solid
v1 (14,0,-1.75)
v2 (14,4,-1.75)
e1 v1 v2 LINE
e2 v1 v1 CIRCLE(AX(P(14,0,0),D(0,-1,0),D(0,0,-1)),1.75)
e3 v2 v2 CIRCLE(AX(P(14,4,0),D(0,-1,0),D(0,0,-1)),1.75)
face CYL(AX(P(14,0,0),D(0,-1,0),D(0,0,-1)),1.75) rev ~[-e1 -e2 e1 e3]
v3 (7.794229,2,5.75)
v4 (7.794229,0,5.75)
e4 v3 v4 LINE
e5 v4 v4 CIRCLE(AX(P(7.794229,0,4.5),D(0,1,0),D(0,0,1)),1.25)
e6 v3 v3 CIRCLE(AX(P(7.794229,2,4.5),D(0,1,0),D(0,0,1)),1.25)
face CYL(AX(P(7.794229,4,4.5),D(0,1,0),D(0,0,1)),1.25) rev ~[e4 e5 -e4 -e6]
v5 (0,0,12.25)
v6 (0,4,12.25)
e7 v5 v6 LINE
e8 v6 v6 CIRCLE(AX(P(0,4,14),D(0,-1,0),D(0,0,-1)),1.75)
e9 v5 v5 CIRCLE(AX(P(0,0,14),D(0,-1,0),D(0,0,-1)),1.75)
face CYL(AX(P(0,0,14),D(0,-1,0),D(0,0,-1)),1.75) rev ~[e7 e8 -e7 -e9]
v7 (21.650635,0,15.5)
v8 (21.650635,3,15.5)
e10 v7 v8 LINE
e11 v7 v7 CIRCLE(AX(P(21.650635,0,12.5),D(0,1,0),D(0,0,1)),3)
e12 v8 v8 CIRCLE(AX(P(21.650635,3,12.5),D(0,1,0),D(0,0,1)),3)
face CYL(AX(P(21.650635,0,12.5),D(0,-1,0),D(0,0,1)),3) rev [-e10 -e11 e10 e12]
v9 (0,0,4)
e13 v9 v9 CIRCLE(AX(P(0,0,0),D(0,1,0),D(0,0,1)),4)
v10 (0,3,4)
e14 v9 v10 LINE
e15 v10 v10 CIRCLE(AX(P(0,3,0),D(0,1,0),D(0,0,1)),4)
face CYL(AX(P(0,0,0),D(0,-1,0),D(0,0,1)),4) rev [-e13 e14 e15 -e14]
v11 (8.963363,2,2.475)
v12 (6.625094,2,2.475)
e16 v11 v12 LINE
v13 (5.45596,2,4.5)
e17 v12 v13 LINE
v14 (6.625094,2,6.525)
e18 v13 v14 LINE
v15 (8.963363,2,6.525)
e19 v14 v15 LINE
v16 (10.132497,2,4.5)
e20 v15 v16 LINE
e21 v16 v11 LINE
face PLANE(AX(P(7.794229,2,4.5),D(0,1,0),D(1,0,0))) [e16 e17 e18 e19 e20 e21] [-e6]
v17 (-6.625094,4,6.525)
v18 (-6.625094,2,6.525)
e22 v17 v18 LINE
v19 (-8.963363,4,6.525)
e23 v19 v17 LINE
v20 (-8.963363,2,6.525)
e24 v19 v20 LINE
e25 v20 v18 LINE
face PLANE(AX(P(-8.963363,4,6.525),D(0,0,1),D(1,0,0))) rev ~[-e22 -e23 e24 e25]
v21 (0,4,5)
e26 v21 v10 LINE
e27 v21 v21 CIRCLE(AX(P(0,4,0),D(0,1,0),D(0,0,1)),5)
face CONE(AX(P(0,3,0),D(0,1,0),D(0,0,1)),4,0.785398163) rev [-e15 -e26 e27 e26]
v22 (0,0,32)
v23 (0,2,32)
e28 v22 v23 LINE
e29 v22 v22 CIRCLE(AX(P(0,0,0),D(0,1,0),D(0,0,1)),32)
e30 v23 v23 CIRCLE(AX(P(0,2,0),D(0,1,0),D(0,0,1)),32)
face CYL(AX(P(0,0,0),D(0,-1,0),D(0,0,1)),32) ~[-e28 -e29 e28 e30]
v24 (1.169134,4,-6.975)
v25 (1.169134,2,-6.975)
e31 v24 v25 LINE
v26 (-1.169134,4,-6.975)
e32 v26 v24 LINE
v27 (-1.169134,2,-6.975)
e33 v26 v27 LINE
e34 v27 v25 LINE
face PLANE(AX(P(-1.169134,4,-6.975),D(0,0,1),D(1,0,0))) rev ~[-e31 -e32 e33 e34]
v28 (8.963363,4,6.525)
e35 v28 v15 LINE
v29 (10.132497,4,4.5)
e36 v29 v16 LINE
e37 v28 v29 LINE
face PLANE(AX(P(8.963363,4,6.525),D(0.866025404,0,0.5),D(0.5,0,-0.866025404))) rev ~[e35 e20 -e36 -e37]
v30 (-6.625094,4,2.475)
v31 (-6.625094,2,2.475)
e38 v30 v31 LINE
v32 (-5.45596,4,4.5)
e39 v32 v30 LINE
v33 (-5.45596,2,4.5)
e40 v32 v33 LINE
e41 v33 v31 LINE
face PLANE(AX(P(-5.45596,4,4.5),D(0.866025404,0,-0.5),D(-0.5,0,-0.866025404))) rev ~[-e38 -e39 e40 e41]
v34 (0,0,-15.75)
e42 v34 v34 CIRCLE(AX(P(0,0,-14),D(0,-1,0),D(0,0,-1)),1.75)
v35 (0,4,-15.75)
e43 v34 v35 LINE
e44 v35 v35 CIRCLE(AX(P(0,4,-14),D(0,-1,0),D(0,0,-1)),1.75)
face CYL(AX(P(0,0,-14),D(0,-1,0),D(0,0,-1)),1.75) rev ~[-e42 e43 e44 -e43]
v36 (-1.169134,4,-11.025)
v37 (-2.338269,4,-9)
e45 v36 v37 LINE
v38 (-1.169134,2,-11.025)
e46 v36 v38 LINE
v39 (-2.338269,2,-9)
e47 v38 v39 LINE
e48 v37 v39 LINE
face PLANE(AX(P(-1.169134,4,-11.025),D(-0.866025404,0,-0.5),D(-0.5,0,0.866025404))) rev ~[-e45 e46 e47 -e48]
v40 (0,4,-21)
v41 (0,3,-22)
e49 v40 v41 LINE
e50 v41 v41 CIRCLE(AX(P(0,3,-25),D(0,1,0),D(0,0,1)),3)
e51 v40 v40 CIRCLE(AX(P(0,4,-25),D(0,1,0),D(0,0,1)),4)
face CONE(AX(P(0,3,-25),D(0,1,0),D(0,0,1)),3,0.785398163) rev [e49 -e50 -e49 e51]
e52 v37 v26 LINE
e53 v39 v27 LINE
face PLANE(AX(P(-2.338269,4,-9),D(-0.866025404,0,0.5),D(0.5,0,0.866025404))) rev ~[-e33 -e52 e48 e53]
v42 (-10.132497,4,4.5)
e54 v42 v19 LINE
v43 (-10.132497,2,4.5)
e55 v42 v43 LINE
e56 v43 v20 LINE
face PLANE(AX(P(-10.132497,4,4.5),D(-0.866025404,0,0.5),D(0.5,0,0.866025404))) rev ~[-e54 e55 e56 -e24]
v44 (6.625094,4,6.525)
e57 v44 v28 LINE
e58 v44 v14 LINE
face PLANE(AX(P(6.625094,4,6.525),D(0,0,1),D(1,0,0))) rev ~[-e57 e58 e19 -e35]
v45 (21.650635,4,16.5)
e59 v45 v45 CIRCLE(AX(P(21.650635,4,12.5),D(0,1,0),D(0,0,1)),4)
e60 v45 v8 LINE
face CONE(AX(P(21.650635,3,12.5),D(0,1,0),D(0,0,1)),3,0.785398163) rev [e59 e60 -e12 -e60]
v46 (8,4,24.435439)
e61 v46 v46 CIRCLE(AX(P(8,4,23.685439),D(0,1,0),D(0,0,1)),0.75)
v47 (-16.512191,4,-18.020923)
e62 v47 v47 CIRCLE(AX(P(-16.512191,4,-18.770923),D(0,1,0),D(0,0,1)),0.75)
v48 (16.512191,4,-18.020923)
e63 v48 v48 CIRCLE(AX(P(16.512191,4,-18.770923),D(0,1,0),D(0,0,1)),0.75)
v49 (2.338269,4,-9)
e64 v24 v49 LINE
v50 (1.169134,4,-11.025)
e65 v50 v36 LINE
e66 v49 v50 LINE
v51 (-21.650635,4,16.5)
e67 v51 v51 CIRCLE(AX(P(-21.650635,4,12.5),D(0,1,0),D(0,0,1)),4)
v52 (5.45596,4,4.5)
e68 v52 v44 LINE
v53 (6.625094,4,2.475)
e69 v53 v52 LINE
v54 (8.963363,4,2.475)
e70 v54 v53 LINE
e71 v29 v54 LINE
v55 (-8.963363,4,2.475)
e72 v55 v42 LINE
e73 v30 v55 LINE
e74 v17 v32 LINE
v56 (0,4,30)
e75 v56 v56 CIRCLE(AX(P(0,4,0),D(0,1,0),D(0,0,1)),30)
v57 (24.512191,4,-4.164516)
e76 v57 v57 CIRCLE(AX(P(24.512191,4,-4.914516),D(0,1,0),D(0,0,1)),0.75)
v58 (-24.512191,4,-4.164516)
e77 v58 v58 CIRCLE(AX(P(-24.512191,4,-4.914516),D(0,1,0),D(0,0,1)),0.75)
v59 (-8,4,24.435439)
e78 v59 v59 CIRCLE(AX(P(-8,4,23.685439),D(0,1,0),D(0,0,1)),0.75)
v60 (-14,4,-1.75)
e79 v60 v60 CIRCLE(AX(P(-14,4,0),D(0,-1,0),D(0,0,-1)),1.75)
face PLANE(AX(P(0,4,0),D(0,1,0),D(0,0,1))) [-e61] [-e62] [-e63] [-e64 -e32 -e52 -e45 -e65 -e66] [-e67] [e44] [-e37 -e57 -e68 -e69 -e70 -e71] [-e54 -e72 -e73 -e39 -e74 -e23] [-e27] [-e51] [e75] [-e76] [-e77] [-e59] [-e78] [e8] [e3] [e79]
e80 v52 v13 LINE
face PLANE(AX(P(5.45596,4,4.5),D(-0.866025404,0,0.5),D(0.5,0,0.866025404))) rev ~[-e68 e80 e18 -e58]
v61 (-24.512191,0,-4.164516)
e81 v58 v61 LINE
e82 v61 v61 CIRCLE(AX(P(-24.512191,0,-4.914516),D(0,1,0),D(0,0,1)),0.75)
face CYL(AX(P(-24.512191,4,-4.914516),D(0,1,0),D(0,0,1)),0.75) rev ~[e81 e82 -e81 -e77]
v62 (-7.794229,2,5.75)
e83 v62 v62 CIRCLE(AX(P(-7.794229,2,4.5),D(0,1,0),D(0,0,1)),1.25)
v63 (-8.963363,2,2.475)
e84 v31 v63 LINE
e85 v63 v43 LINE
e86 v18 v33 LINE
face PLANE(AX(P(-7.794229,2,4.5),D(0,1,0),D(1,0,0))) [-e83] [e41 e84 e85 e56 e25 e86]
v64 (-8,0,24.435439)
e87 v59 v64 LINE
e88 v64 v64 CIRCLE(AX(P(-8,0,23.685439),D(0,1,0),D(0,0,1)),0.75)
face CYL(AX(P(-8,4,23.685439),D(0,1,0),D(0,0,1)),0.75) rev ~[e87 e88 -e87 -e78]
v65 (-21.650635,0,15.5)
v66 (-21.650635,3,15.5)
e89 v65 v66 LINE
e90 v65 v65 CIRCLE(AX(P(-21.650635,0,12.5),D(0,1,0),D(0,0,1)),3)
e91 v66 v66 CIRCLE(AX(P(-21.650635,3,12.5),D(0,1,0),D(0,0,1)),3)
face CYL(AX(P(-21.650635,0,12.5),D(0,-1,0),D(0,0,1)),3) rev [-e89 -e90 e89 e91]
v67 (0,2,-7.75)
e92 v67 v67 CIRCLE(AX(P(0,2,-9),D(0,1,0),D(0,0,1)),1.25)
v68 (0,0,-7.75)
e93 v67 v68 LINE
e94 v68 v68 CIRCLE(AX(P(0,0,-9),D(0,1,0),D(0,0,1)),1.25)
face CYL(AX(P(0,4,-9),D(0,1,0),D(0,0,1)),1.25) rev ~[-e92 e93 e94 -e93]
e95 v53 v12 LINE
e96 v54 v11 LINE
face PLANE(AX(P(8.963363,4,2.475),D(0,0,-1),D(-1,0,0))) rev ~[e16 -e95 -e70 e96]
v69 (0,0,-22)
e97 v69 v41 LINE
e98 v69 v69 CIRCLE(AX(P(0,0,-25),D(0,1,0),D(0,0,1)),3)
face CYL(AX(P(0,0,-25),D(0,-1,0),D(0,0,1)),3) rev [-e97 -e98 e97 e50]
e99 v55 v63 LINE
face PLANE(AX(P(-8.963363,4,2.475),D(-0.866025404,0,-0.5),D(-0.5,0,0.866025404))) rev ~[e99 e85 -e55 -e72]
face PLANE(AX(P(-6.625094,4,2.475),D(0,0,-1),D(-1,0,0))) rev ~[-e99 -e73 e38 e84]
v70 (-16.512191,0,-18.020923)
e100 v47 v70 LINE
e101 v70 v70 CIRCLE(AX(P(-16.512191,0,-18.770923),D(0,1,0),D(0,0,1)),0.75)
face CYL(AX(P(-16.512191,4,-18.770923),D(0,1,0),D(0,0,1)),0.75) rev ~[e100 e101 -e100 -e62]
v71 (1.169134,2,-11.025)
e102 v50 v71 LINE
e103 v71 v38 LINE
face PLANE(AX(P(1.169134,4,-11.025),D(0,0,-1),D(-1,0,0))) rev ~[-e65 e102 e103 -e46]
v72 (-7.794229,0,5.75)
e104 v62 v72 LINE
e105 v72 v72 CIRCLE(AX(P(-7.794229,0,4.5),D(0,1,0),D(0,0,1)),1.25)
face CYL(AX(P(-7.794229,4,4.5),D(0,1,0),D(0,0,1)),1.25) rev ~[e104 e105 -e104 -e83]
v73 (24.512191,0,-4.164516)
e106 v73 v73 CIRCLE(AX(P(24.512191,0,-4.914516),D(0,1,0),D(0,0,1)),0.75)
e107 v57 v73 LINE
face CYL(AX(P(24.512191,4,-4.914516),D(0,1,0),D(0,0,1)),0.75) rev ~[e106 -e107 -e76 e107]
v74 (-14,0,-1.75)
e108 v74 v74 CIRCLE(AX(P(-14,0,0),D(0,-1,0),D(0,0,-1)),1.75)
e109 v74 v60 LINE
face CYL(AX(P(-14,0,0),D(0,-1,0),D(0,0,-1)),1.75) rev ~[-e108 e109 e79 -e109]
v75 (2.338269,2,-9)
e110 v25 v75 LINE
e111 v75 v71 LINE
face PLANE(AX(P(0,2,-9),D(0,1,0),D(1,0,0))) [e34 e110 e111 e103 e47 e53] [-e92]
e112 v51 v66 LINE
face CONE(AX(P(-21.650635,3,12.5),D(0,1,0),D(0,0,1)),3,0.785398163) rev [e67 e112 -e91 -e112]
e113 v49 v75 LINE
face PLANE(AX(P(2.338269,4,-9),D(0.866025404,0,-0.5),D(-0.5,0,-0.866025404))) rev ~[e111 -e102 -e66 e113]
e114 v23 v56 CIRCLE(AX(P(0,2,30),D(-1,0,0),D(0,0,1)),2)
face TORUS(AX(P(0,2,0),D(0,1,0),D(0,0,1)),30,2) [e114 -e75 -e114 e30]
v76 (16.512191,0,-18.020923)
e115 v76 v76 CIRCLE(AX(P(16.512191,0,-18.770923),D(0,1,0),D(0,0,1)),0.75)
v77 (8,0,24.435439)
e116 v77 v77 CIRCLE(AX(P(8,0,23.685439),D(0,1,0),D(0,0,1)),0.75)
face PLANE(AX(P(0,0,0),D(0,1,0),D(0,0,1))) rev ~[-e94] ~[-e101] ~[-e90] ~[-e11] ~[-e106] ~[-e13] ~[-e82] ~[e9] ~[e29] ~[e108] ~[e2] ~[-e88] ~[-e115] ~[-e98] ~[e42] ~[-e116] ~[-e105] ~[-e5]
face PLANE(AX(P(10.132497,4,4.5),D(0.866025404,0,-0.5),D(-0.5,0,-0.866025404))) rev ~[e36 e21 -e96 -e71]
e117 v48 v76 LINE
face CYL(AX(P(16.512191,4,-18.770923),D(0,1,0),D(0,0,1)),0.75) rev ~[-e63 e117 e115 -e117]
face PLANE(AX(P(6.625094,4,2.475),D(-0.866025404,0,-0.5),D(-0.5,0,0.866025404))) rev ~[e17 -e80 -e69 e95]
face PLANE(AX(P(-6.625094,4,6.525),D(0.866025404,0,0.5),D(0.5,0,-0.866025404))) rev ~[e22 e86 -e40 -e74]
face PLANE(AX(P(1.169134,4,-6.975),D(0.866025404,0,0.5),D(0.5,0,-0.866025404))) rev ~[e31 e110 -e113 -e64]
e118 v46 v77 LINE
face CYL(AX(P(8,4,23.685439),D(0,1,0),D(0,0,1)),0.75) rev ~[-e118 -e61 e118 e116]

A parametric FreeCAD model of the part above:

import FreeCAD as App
import Part
import Sketcher

V = App.Vector
Q = App.Units.Quantity


def edges_at(feature, points):
    """Names of the edges that pass closest to the given points."""
    edges = feature.Shape.Edges
    near = lambda p: min(range(len(edges)), key=lambda i: edges[i].distToShape(Part.Vertex(*p))[0])
    return sorted({f"Edge{near(p) + 1}" for p in points})

doc = App.newDocument("Part")
body = doc.addObject("PartDesign::Body", "Body")

sketch1 = doc.addObject("Sketcher::SketchObject", "Sketch")
body.addObject(sketch1)
sketch1.AttachmentSupport = (doc.XZ_Plane, [""])
sketch1.MapMode = "FlatFace"
sketch1.addGeometry([
    Part.Circle(V(0, 0, 0), V(0, 0, 1), 32),
    Part.Circle(V(0, -25, 0), V(0, 0, 1), 3),
    Part.Circle(V(-21.7, 12.5, 0), V(0, 0, 1), 3),
    Part.Circle(V(0, 0, 0), V(0, 0, 1), 4),
    Part.Circle(V(21.7, 12.5, 0), V(0, 0, 1), 3),
], False)
sketch1.addConstraint([
    Sketcher.Constraint("Coincident", 0, 3, -1, 1),
    Sketcher.Constraint("Coincident", 3, 3, -1, 1),
    Sketcher.Constraint("Equal", 1, 2),
    Sketcher.Constraint("Equal", 2, 4),
    Sketcher.Constraint("Symmetric", 2, 3, 4, 3, -2),
    Sketcher.Constraint("PointOnObject", 1, 3, -2),
    Sketcher.Constraint("Diameter", 0, 64.0),
    Sketcher.Constraint("Diameter", 1, 6.0),
    Sketcher.Constraint("Diameter", 3, 8.0),
    Sketcher.Constraint("DistanceY", 1, 3, -1, 1, 25.0),
    Sketcher.Constraint("DistanceY", -1, 1, 2, 3, 12.5),
    Sketcher.Constraint("DistanceX", 2, 3, 4, 3, 43.30127),
])
pad1 = doc.addObject("PartDesign::Pad", "Pad")
body.addObject(pad1)
pad1.Profile = sketch1
pad1.Length = 4
pad1.Reversed = True
doc.recompute()

fillet = doc.addObject("PartDesign::Fillet", "Fillet")
body.addObject(fillet)
fillet.Base = (pad1, edges_at(pad1, [(0, 4, -32)]))
fillet.Radius = 2

sketch2 = doc.addObject("Sketcher::SketchObject", "Sketch001")
body.addObject(sketch2)
sketch2.AttachmentSupport = (doc.XZ_Plane, [""])
sketch2.MapMode = "FlatFace"
sketch2.AttachmentOffset = App.Placement(V(0, 0, -4), App.Rotation())
sketch2.addGeometry([
    Part.Circle(V(0, -9, 0), V(0, 0, 1), 1.2),
    Part.Circle(V(7.8, 4.5, 0), V(0, 0, 1), 1.2),
    Part.Circle(V(-7.8, 4.5, 0), V(0, 0, 1), 1.2),
], False)
sketch2.addConstraint([
    Sketcher.Constraint("Equal", 0, 1),
    Sketcher.Constraint("Equal", 1, 2),
    Sketcher.Constraint("Symmetric", 1, 3, 2, 3, -2),
    Sketcher.Constraint("PointOnObject", 0, 3, -2),
    Sketcher.Constraint("Diameter", 0, 2.5),
    Sketcher.Constraint("DistanceY", 0, 3, -1, 1, 9.0),
    Sketcher.Constraint("DistanceY", -1, 1, 1, 3, 4.5),
    Sketcher.Constraint("DistanceX", -1, 1, 1, 3, 7.794229),
])
pocket1 = doc.addObject("PartDesign::Pocket", "Pocket")
body.addObject(pocket1)
pocket1.Profile = sketch2
pocket1.Type = "ThroughAll"
pocket1.Reversed = True

sketch3 = doc.addObject("Sketcher::SketchObject", "Sketch002")
body.addObject(sketch3)
sketch3.AttachmentSupport = (doc.XZ_Plane, [""])
sketch3.MapMode = "FlatFace"
sketch3.addGeometry([
    Part.Circle(V(0, 14, 0), V(0, 0, 1), 1.8),
    Part.Circle(V(14, 0, 0), V(0, 0, 1), 1.8),
    Part.Circle(V(0, -14, 0), V(0, 0, 1), 1.8),
    Part.Circle(V(-14, 0, 0), V(0, 0, 1), 1.8),
], False)
sketch3.addConstraint([
    Sketcher.Constraint("Equal", 0, 1),
    Sketcher.Constraint("Equal", 1, 2),
    Sketcher.Constraint("Equal", 2, 3),
    Sketcher.Constraint("Symmetric", 0, 3, 2, 3, -1, 1),
    Sketcher.Constraint("Symmetric", 1, 3, 3, 3, -1, 1),
    Sketcher.Constraint("PointOnObject", 0, 3, -2),
    Sketcher.Constraint("PointOnObject", 1, 3, -1),
    Sketcher.Constraint("Diameter", 0, 3.5),
    Sketcher.Constraint("DistanceY", -1, 1, 0, 3, 14.0),
    Sketcher.Constraint("DistanceX", -1, 1, 1, 3, 14.0),
])
pocket2 = doc.addObject("PartDesign::Pocket", "Pocket001")
body.addObject(pocket2)
pocket2.Profile = sketch3
pocket2.Type = "ThroughAll"

sketch4 = doc.addObject("Sketcher::SketchObject", "Sketch003")
body.addObject(sketch4)
sketch4.AttachmentSupport = (doc.XZ_Plane, [""])
sketch4.MapMode = "FlatFace"
sketch4.AttachmentOffset = App.Placement(V(0, 0, -4), App.Rotation())
sketch4.addGeometry([
    Part.LineSegment(V(5.5, 4.5, 0), V(6.6, 6.5, 0)),
    Part.LineSegment(V(6.6, 6.5, 0), V(9, 6.5, 0)),
    Part.LineSegment(V(9, 6.5, 0), V(10.1, 4.5, 0)),
    Part.LineSegment(V(10.1, 4.5, 0), V(9, 2.5, 0)),
    Part.LineSegment(V(9, 2.5, 0), V(6.6, 2.5, 0)),
    Part.LineSegment(V(6.6, 2.5, 0), V(5.5, 4.5, 0)),
    Part.LineSegment(V(1.2, -7, 0), V(2.3, -9, 0)),
    Part.LineSegment(V(2.3, -9, 0), V(1.2, -11, 0)),
    Part.LineSegment(V(1.2, -11, 0), V(-1.2, -11, 0)),
    Part.LineSegment(V(-1.2, -11, 0), V(-2.3, -9, 0)),
    Part.LineSegment(V(-2.3, -9, 0), V(-1.2, -7, 0)),
    Part.LineSegment(V(-1.2, -7, 0), V(1.2, -7, 0)),
    Part.LineSegment(V(-6.6, 2.5, 0), V(-9, 2.5, 0)),
    Part.LineSegment(V(-9, 2.5, 0), V(-10.1, 4.5, 0)),
    Part.LineSegment(V(-10.1, 4.5, 0), V(-9, 6.5, 0)),
    Part.LineSegment(V(-9, 6.5, 0), V(-6.6, 6.5, 0)),
    Part.LineSegment(V(-6.6, 6.5, 0), V(-5.5, 4.5, 0)),
    Part.LineSegment(V(-5.5, 4.5, 0), V(-6.6, 2.5, 0)),
], False)
sketch4.addConstraint([
    Sketcher.Constraint("Coincident", 0, 2, 1, 1),
    Sketcher.Constraint("Coincident", 1, 2, 2, 1),
    Sketcher.Constraint("Coincident", 2, 2, 3, 1),
    Sketcher.Constraint("Coincident", 3, 2, 4, 1),
    Sketcher.Constraint("Coincident", 4, 2, 5, 1),
    Sketcher.Constraint("Coincident", 5, 2, 0, 1),
    Sketcher.Constraint("Coincident", 6, 2, 7, 1),
    Sketcher.Constraint("Coincident", 7, 2, 8, 1),
    Sketcher.Constraint("Coincident", 8, 2, 9, 1),
    Sketcher.Constraint("Coincident", 9, 2, 10, 1),
    Sketcher.Constraint("Coincident", 10, 2, 11, 1),
    Sketcher.Constraint("Coincident", 11, 2, 6, 1),
    Sketcher.Constraint("Coincident", 12, 2, 13, 1),
    Sketcher.Constraint("Coincident", 13, 2, 14, 1),
    Sketcher.Constraint("Coincident", 14, 2, 15, 1),
    Sketcher.Constraint("Coincident", 15, 2, 16, 1),
    Sketcher.Constraint("Coincident", 16, 2, 17, 1),
    Sketcher.Constraint("Coincident", 17, 2, 12, 1),
    Sketcher.Constraint("Horizontal", 1),
    Sketcher.Constraint("Horizontal", 4),
    Sketcher.Constraint("Horizontal", 8),
    Sketcher.Constraint("Horizontal", 11),
    Sketcher.Constraint("Horizontal", 12),
    Sketcher.Constraint("Horizontal", 15),
    Sketcher.Constraint("Symmetric", 6, 2, 9, 2, -2),
    Sketcher.Constraint("Symmetric", 3, 2, 12, 2, -2),
    Sketcher.Constraint("Symmetric", 2, 2, 13, 2, -2),
    Sketcher.Constraint("Symmetric", 1, 2, 14, 2, -2),
    Sketcher.Constraint("Symmetric", 5, 2, 16, 2, -2),
    Sketcher.Constraint("Parallel", 0, 3),
    Sketcher.Constraint("Parallel", 2, 5),
    Sketcher.Constraint("Parallel", 5, 6),
    Sketcher.Constraint("Parallel", 3, 7),
    Sketcher.Constraint("Parallel", 6, 9),
    Sketcher.Constraint("Parallel", 7, 10),
    Sketcher.Constraint("Parallel", 9, 13),
    Sketcher.Constraint("Parallel", 13, 16),
    Sketcher.Constraint("Parallel", 14, 17),
    Sketcher.Constraint("Horizontal", 2, 2, 5, 2),
    Sketcher.Constraint("Vertical", 1, 2, 3, 2),
    Sketcher.Constraint("Vertical", 8, 2, 10, 2),
    Sketcher.Constraint("Equal", 4, 8),
    Sketcher.Constraint("Equal", 5, 6),
    Sketcher.Constraint("Angle", 0, Q("60 deg")),
    Sketcher.Constraint("DistanceY", 6, 2, -1, 1, 9.0),
    Sketcher.Constraint("DistanceY", -1, 1, 2, 2, 4.5),
    Sketcher.Constraint("DistanceY", 3, 2, 1, 2, 4.05),
    Sketcher.Constraint("DistanceX", 1, 1, 1, 2, 2.338269),
    Sketcher.Constraint("DistanceX", -1, 1, 5, 2, 5.45596),
])
pocket3 = doc.addObject("PartDesign::Pocket", "Pocket002")
body.addObject(pocket3)
pocket3.Profile = sketch4
pocket3.Length = 2
pocket3.Reversed = True
doc.recompute()

chamfer = doc.addObject("PartDesign::Chamfer", "Chamfer")
body.addObject(chamfer)
chamfer.Base = (pocket3, edges_at(pocket3, [
    (21.651, 4, 9.5),
    (-21.651, 4, 9.5),
    (0, 4, -4),
    (0, 4, -28),
]))
chamfer.Size = 1

sketch5 = doc.addObject("Sketcher::SketchObject", "Sketch004")
body.addObject(sketch5)
sketch5.AttachmentSupport = (doc.XZ_Plane, [""])
sketch5.MapMode = "FlatFace"
sketch5.AttachmentOffset = App.Placement(V(0, 0, -4), App.Rotation())
sketch5.addGeometry([
    Part.Circle(V(-8, 23.7, 0), V(0, 0, 1), 0.8),
    Part.Circle(V(8, 23.7, 0), V(0, 0, 1), 0.8),
    Part.Circle(V(-16.5, -18.8, 0), V(0, 0, 1), 0.8),
    Part.Circle(V(-24.5, -4.9, 0), V(0, 0, 1), 0.8),
    Part.Circle(V(24.5, -4.9, 0), V(0, 0, 1), 0.8),
    Part.Circle(V(16.5, -18.8, 0), V(0, 0, 1), 0.8),
], False)
sketch5.addConstraint([
    Sketcher.Constraint("Equal", 0, 1),
    Sketcher.Constraint("Equal", 1, 2),
    Sketcher.Constraint("Equal", 2, 3),
    Sketcher.Constraint("Equal", 3, 4),
    Sketcher.Constraint("Equal", 4, 5),
    Sketcher.Constraint("Symmetric", 0, 3, 1, 3, -2),
    Sketcher.Constraint("Symmetric", 3, 3, 4, 3, -2),
    Sketcher.Constraint("Symmetric", 2, 3, 5, 3, -2),
    Sketcher.Constraint("Diameter", 0, 1.5),
    Sketcher.Constraint("DistanceX", 0, 3, -1, 1, 8.0),
    Sketcher.Constraint("DistanceX", 3, 3, 2, 3, 8.0),
    Sketcher.Constraint("DistanceY", -1, 1, 0, 3, 23.685439),
    Sketcher.Constraint("DistanceX", 2, 3, -1, 1, 16.512191),
    Sketcher.Constraint("DistanceY", 2, 3, 0, 3, 42.456361),
    Sketcher.Constraint("DistanceY", 3, 3, -1, 1, 4.914516),
])
pocket4 = doc.addObject("PartDesign::Pocket", "Pocket003")
body.addObject(pocket4)
pocket4.Profile = sketch5
pocket4.Type = "ThroughAll"
pocket4.Reversed = True

doc.recompute()
